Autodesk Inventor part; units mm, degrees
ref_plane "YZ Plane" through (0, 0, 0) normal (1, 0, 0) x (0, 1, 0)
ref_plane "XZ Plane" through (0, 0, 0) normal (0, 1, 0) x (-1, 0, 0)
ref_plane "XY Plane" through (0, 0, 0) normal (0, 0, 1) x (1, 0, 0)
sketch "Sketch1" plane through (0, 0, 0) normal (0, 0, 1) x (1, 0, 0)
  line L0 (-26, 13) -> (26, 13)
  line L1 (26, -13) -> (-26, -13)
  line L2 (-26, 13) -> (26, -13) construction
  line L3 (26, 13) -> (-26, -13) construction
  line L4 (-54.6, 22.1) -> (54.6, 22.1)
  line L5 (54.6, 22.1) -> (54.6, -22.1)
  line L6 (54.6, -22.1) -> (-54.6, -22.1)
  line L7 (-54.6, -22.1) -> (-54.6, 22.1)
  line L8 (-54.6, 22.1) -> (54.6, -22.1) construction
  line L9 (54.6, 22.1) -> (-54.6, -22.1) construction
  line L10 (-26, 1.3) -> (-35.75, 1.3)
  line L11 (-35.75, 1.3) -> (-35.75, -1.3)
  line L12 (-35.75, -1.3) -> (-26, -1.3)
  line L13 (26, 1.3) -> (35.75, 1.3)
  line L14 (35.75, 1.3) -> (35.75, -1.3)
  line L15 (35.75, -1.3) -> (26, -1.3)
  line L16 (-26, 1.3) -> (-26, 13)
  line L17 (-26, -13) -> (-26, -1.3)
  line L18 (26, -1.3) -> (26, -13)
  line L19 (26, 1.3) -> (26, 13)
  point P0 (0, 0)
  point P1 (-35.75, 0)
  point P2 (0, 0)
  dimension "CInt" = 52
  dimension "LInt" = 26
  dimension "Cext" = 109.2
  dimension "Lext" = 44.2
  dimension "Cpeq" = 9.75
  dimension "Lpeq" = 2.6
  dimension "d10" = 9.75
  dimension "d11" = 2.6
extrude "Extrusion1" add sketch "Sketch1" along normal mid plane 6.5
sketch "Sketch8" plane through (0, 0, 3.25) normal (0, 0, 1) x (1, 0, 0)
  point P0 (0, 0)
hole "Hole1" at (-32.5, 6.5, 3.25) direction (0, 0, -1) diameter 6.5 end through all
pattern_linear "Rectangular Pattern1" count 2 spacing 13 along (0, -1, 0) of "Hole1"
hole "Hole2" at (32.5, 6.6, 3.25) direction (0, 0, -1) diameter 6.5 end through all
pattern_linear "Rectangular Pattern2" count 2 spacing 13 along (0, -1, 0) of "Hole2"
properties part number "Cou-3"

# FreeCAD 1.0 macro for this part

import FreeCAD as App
import Part
import Sketcher

V = App.Vector


def add_polygon(sketch, points):
    """Adds a closed chain of lines whose ends are joined by coincident constraints."""
    first, n = sketch.GeometryCount, len(points)
    for a, b in zip(points, points[1:] + points[:1]):
        sketch.addGeometry(Part.LineSegment(App.Vector(*a, 0), App.Vector(*b, 0)), False)
    for i in range(n):
        sketch.addConstraint(Sketcher.Constraint("Coincident", first + i, 2, first + (i + 1) % n, 1))

doc = App.newDocument("Part")
body = doc.addObject("PartDesign::Body", "Body")

# Sketch on XY plane
sketch1 = body.newObject("Sketcher::SketchObject", "Sketch")
sketch1.AttachmentSupport = (doc.getObject("XY_Plane"), [""])
sketch1.MapMode = "FlatFace"
add_polygon(sketch1, [(54.6, 22.1), (-54.6, 22.1), (-54.6, -22.1), (54.6, -22.1)])  # lines 0-3
add_polygon(sketch1, [(-26, 1.3), (-26, 13), (26, 13), (26, 1.3), (35.8, 1.3), (35.8, -1.3), (26, -1.3), (26, -13), (-26, -13), (-26, -1.3), (-35.8, -1.3), (-35.8, 1.3)])  # lines 4-15
sketch1.addConstraint(Sketcher.Constraint("Horizontal", 0))
sketch1.addConstraint(Sketcher.Constraint("Vertical", 1))
sketch1.addConstraint(Sketcher.Constraint("Horizontal", 2))
sketch1.addConstraint(Sketcher.Constraint("Vertical", 3))
sketch1.addConstraint(Sketcher.Constraint("Vertical", 4))
sketch1.addConstraint(Sketcher.Constraint("Horizontal", 5))
sketch1.addConstraint(Sketcher.Constraint("Vertical", 6))
sketch1.addConstraint(Sketcher.Constraint("Horizontal", 7))
sketch1.addConstraint(Sketcher.Constraint("Vertical", 8))
sketch1.addConstraint(Sketcher.Constraint("Horizontal", 9))
sketch1.addConstraint(Sketcher.Constraint("Vertical", 10))
sketch1.addConstraint(Sketcher.Constraint("Horizontal", 11))
sketch1.addConstraint(Sketcher.Constraint("Vertical", 12))
sketch1.addConstraint(Sketcher.Constraint("Horizontal", 13))
sketch1.addConstraint(Sketcher.Constraint("Vertical", 14))
sketch1.addConstraint(Sketcher.Constraint("Horizontal", 15))
sketch1.addConstraint(Sketcher.Constraint("Symmetric", 0, 2, 2, 2, -1, 1))
sketch1.addConstraint(Sketcher.Constraint("Symmetric", 4, 2, 10, 2, -1, 1))
sketch1.addConstraint(Sketcher.Constraint("Symmetric", 6, 2, 12, 2, -1, 1))
sketch1.addConstraint(Sketcher.Constraint("Symmetric", 8, 2, 14, 2, -1, 1))
sketch1.addConstraint(Sketcher.Constraint("Symmetric", 9, 2, 12, 2, -2))
sketch1.addConstraint(Sketcher.Constraint("DistanceX", 5, 1, 5, 2, 52.0))
sketch1.addConstraint(Sketcher.Constraint("DistanceX", 0, 2, 0, 1, 109.2))
sketch1.addConstraint(Sketcher.Constraint("DistanceY", 1, 2, 1, 1, 44.2))
sketch1.addConstraint(Sketcher.Constraint("DistanceY", 8, 2, 8, 1, 2.6))
sketch1.addConstraint(Sketcher.Constraint("DistanceY", 10, 2, 5, 2, 26.0))
sketch1.addConstraint(Sketcher.Constraint("DistanceX", 7, 1, 7, 2, 9.75))
pad1 = body.newObject("PartDesign::Pad", "Pad")
pad1.Profile = sketch1
pad1.Length = 6.5
pad1.Midplane = True

# Sketch on XY plane
sketch2 = body.newObject("Sketcher::SketchObject", "Sketch001")
sketch2.AttachmentSupport = (doc.getObject("XY_Plane"), [""])
sketch2.MapMode = "FlatFace"
sketch2.AttachmentOffset = App.Placement(V(0, 0, 3.25), App.Rotation())
sketch2.addGeometry(Part.Circle(V(-32.5, 6.5, 0), V(0, 0, 1), 3.2), False)
sketch2.addConstraint(Sketcher.Constraint("Diameter", 0, 6.5))
sketch2.addConstraint(Sketcher.Constraint("DistanceX", 0, 3, -1, 1, 32.5))
sketch2.addConstraint(Sketcher.Constraint("DistanceY", -1, 1, 0, 3, 6.5))
doc.recompute()
hole = body.newObject("PartDesign::Hole", "Hole")
hole.Profile = sketch2
hole.ThreadType = "None"
hole.Diameter = 6.5
hole.DepthType = "ThroughAll"
doc.recompute()

linearpattern = body.newObject("PartDesign::LinearPattern", "LinearPattern")
linearpattern.Originals = [hole]
linearpattern.Direction = (doc.getObject("Y_Axis"), [""])
linearpattern.Mode = "offset"
linearpattern.Offset = 13
linearpattern.Occurrences = 2
linearpattern.Reversed = True
body.Tip = linearpattern

# Sketch on XY plane
sketch3 = body.newObject("Sketcher::SketchObject", "Sketch002")
sketch3.AttachmentSupport = (doc.getObject("XY_Plane"), [""])
sketch3.MapMode = "FlatFace"
sketch3.AttachmentOffset = App.Placement(V(0, 0, 3.25), App.Rotation())
sketch3.addGeometry(Part.Circle(V(32.5, 6.6, 0), V(0, 0, 1), 3.2), False)
sketch3.addConstraint(Sketcher.Constraint("Diameter", 0, 6.5))
sketch3.addConstraint(Sketcher.Constraint("DistanceX", -1, 1, 0, 3, 32.5))
sketch3.addConstraint(Sketcher.Constraint("DistanceY", -1, 1, 0, 3, 6.6))
doc.recompute()
hole2 = body.newObject("PartDesign::Hole", "Hole001")
hole2.Profile = sketch3
hole2.ThreadType = "None"
hole2.Diameter = 6.5
hole2.DepthType = "ThroughAll"
doc.recompute()

linearpattern2 = body.newObject("PartDesign::LinearPattern", "LinearPattern001")
linearpattern2.Originals = [hole2]
linearpattern2.Direction = (doc.getObject("Y_Axis"), [""])
linearpattern2.Mode = "offset"
linearpattern2.Offset = 13
linearpattern2.Occurrences = 2
linearpattern2.Reversed = True
body.Tip = linearpattern2

doc.recompute()
